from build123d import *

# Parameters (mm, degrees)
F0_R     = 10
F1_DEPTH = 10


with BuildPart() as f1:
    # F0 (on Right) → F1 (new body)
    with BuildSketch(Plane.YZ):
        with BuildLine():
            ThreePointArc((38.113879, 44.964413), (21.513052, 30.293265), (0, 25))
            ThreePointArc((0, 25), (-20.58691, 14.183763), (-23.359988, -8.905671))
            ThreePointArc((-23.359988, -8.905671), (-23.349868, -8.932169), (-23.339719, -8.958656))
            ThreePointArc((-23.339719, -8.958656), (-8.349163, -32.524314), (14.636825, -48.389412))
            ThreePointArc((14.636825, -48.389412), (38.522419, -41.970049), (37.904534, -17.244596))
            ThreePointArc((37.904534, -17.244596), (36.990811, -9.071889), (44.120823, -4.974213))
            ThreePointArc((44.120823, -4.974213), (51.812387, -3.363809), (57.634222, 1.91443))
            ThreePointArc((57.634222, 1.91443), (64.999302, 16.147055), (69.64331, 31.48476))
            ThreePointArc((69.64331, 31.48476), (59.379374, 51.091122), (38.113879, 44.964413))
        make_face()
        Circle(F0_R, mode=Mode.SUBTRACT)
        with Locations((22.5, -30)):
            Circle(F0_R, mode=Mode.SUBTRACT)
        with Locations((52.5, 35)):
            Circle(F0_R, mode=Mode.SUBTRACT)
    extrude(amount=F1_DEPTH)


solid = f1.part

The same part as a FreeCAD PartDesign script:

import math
import FreeCAD as App
import Part
import Sketcher

V = App.Vector
Q = App.Units.Quantity

doc = App.newDocument("Part")
params = doc.addObject("Spreadsheet::Sheet", "Params")
for row, (alias, value) in enumerate([
    ("sketch1_diameter", "20 mm"),
    ("sketch1_radius", "25 mm"),
    ("sketch1_radius2", "20 mm"),
    ("sketch1_radius3", "15 mm"),
    ("sketch1_radius4", "7.5 mm"),
    ("pad1_length", "10 mm"),
], start=1):
    params.set(f"A{row}", alias)
    params.set(f"B{row}", "=" + value)
    params.setAlias(f"B{row}", alias)

body = doc.addObject("PartDesign::Body", "Body")

sketch1 = body.newObject("Sketcher::SketchObject", "Sketch")
sketch1.AttachmentSupport = (doc.getObject("YZ_Plane"), [""])
sketch1.MapMode = "FlatFace"
sketch1.addGeometry(Part.ArcOfCircle(Part.Circle(V(0.000002, 71.363633, 0), V(0, 0, 1), 46.363633), math.radians(-90.000002), math.radians(-34.708047)), False)
sketch1.addGeometry(Part.ArcOfCircle(Part.Circle(V(0, 0, 0), V(0, 0, 1), 25), math.radians(90.000001), math.radians(200.868652)), False)
sketch1.addGeometry(Part.ArcOfCircle(Part.Circle(V(0.878082, 0.336045, 0), V(0, 0, 1), 25.940187), math.radians(-159.128688), math.radians(-159.003386)), False)
sketch1.addGeometry(Part.ArcOfCircle(Part.Circle(V(42.264468, 16.222679, 0), V(0, 0, 1), 70.270968), math.radians(-159.001334), math.radians(-113.151187)), False)
sketch1.addGeometry(Part.ArcOfCircle(Part.Circle(V(22.5, -30, 0), V(0, 0, 1), 20), math.radians(-113.151188), math.radians(39.625748)), False)
sketch1.addGeometry(Part.ArcOfCircle(Part.Circle(V(43.681234, -12.461319, 0), V(0, 0, 1), 7.5), math.radians(86.639863), math.radians(219.625751)), False)
sketch1.addGeometry(Part.ArcOfCircle(Part.Circle(V(45, 10, 0), V(0, 0, 1), 15), math.radians(-93.360135), math.radians(-32.618175)), False)
sketch1.addGeometry(Part.ArcOfCircle(Part.Circle(V(-16.017361, 49.049503, 0), V(0, 0, 1), 87.442958), math.radians(-32.618172), math.radians(-11.58789)), False)
sketch1.addGeometry(Part.ArcOfCircle(Part.Circle(V(52.5, 35, 0), V(0, 0, 1), 17.5), math.radians(-11.587889), math.radians(145.29195)), False)
sketch1.addGeometry(Part.Circle(V(22.5, -30, 0), V(0, 0, 1), 10), False)
sketch1.addGeometry(Part.Circle(V(0, 0, 0), V(0, 0, 1), 10), False)
sketch1.addGeometry(Part.Circle(V(52.5, 35, 0), V(0, 0, 1), 10), False)
sketch1.addConstraint(Sketcher.Constraint("Tangent", 0, 1, 1, 1))
sketch1.addConstraint(Sketcher.Constraint("Coincident", 1, 2, 2, 1))
sketch1.addConstraint(Sketcher.Constraint("Coincident", 2, 2, 3, 1))
sketch1.addConstraint(Sketcher.Constraint("Tangent", 3, 2, 4, 1))
sketch1.addConstraint(Sketcher.Constraint("Tangent", 4, 2, 5, 2))
sketch1.addConstraint(Sketcher.Constraint("Tangent", 5, 1, 6, 1))
sketch1.addConstraint(Sketcher.Constraint("Tangent", 6, 2, 7, 1))
sketch1.addConstraint(Sketcher.Constraint("Tangent", 7, 2, 8, 1))
sketch1.addConstraint(Sketcher.Constraint("Tangent", 8, 2, 0, 2))
sketch1.addConstraint(Sketcher.Constraint("Coincident", 1, 3, -1, 1))
sketch1.addConstraint(Sketcher.Constraint("Coincident", 10, 3, -1, 1))
sketch1.addConstraint(Sketcher.Constraint("Coincident", 9, 3, 4, 3))
sketch1.addConstraint(Sketcher.Constraint("Coincident", 11, 3, 8, 3))
sketch1.addConstraint(Sketcher.Constraint("Equal", 9, 10))
sketch1.addConstraint(Sketcher.Constraint("Equal", 10, 11))
sketch1.addConstraint(Sketcher.Constraint("PointOnObject", 0, 3, -2))
sketch1.addConstraint(Sketcher.Constraint("Diameter", 9, Q("20 mm")))
sketch1.addConstraint(Sketcher.Constraint("Radius", 1, Q("25 mm")))
sketch1.addConstraint(Sketcher.Constraint("Radius", 4, Q("20 mm")))
sketch1.addConstraint(Sketcher.Constraint("Radius", 6, Q("15 mm")))
sketch1.addConstraint(Sketcher.Constraint("Radius", 5, Q("7.5 mm")))
sketch1.addConstraint(Sketcher.Constraint("Radius", 8, Q("17.5 mm")))
sketch1.addConstraint(Sketcher.Constraint("DistanceY", 4, 3, -1, 1, Q("30 mm")))
sketch1.addConstraint(Sketcher.Constraint("DistanceX", -1, 1, 6, 3, Q("45 mm")))
sketch1.addConstraint(Sketcher.Constraint("DistanceY", -1, 1, 6, 3, Q("10 mm")))
sketch1.addConstraint(Sketcher.Constraint("DistanceY", -1, 1, 8, 3, Q("35 mm")))
sketch1.addConstraint(Sketcher.Constraint("DistanceX", -1, 1, 4, 3, Q("22.5 mm")))
sketch1.addConstraint(Sketcher.Constraint("DistanceX", -1, 1, 8, 3, Q("52.5 mm")))
sketch1.addConstraint(Sketcher.Constraint("Radius", 3, Q("70.270968 mm")))
sketch1.addConstraint(Sketcher.Constraint("Radius", 2, Q("25.940187 mm")))
sketch1.addConstraint(Sketcher.Constraint("Radius", 7, Q("87.442958 mm")))
sketch1.addConstraint(Sketcher.Constraint("DistanceX", 2, 2, 2, 3, Q("24.217801 mm")))
sketch1.addConstraint(Sketcher.Constraint("DistanceX", -1, 1, 2, 3, Q("0.878082 mm")))
sketch1.addConstraint(Sketcher.Constraint("DistanceX", 1, 2, -1, 1, Q("23.359988 mm")))
sketch1.setExpression("Constraints[16]", "Params.sketch1_diameter")
sketch1.setExpression("Constraints[17]", "Params.sketch1_radius")
sketch1.setExpression("Constraints[18]", "Params.sketch1_radius2")
sketch1.setExpression("Constraints[19]", "Params.sketch1_radius3")
sketch1.setExpression("Constraints[20]", "Params.sketch1_radius4")
pad1 = body.newObject("PartDesign::Pad", "Pad")
pad1.Profile = sketch1
pad1.setExpression("Length", "Params.pad1_length")

doc.recompute()
